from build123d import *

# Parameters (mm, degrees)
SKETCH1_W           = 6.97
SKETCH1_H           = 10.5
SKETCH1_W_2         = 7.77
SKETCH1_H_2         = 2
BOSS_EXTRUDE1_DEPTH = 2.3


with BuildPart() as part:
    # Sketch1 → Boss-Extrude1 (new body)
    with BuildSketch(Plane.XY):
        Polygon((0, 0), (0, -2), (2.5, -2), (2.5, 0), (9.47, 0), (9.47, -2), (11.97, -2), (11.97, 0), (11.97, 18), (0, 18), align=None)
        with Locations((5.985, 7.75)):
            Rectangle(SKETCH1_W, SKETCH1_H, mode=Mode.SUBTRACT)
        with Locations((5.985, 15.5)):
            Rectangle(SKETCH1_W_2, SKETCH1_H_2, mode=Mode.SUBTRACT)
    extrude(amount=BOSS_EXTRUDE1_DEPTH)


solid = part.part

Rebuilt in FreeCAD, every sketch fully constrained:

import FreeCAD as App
import Part
import Sketcher

V = App.Vector


def add_polygon(sketch, points):
    """Adds a closed chain of lines whose ends are joined by coincident constraints."""
    first, n = sketch.GeometryCount, len(points)
    for a, b in zip(points, points[1:] + points[:1]):
        sketch.addGeometry(Part.LineSegment(App.Vector(*a, 0), App.Vector(*b, 0)), False)
    for i in range(n):
        sketch.addConstraint(Sketcher.Constraint("Coincident", first + i, 2, first + (i + 1) % n, 1))

doc = App.newDocument("Part")
body = doc.addObject("PartDesign::Body", "Body")

sketch1 = body.newObject("Sketcher::SketchObject", "Sketch")
sketch1.AttachmentSupport = (doc.getObject("XY_Plane"), [""])
sketch1.MapMode = "FlatFace"
add_polygon(sketch1, [(0, -2), (2.5, -2), (2.5, 0), (9.5, 0), (9.5, -2), (12, -2), (12, 18), (0, 18)])
add_polygon(sketch1, [(9.5, 2.5), (2.5, 2.5), (2.5, 13), (9.5, 13)])
add_polygon(sketch1, [(9.9, 14.5), (2.1, 14.5), (2.1, 16.5), (9.9, 16.5)])
sketch1.addConstraint([
    Sketcher.Constraint("Horizontal", 0),
    Sketcher.Constraint("Vertical", 1),
    Sketcher.Constraint("Horizontal", 2),
    Sketcher.Constraint("Vertical", 3),
    Sketcher.Constraint("Horizontal", 4),
    Sketcher.Constraint("Vertical", 5),
    Sketcher.Constraint("Horizontal", 6),
    Sketcher.Constraint("Vertical", 7),
    Sketcher.Constraint("Horizontal", 8),
    Sketcher.Constraint("Vertical", 9),
    Sketcher.Constraint("Horizontal", 10),
    Sketcher.Constraint("Vertical", 11),
    Sketcher.Constraint("Horizontal", 12),
    Sketcher.Constraint("Vertical", 13),
    Sketcher.Constraint("Horizontal", 14),
    Sketcher.Constraint("Vertical", 15),
    Sketcher.Constraint("PointOnObject", 1, 2, -1),
    Sketcher.Constraint("PointOnObject", 6, 2, -2),
    Sketcher.Constraint("Horizontal", 0, 2, 3, 2),
    Sketcher.Constraint("Vertical", 1, 2, 8, 2),
    Sketcher.Constraint("Vertical", 3, 2, 10, 2),
    Sketcher.Constraint("Equal", 0, 4),
    Sketcher.Constraint("Equal", 3, 13),
    Sketcher.Constraint("DistanceY", 1, 1, 1, 2, 2.0),
    Sketcher.Constraint("DistanceY", 5, 1, 5, 2, 20.0),
    Sketcher.Constraint("DistanceX", 0, 1, 0, 2, 2.5),
    Sketcher.Constraint("DistanceY", 9, 1, 9, 2, 10.5),
    Sketcher.Constraint("DistanceY", -1, 1, 9, 2, 13.0),
    Sketcher.Constraint("DistanceY", 8, 2, 12, 2, 12.0),
    Sketcher.Constraint("DistanceX", 2, 1, 2, 2, 6.97),
    Sketcher.Constraint("DistanceX", 12, 2, 12, 1, 7.77),
    Sketcher.Constraint("DistanceX", -1, 1, 12, 2, 2.1),
])
pad1 = body.newObject("PartDesign::Pad", "Pad")
pad1.Profile = sketch1
pad1.Length = 2.3

doc.recompute()
